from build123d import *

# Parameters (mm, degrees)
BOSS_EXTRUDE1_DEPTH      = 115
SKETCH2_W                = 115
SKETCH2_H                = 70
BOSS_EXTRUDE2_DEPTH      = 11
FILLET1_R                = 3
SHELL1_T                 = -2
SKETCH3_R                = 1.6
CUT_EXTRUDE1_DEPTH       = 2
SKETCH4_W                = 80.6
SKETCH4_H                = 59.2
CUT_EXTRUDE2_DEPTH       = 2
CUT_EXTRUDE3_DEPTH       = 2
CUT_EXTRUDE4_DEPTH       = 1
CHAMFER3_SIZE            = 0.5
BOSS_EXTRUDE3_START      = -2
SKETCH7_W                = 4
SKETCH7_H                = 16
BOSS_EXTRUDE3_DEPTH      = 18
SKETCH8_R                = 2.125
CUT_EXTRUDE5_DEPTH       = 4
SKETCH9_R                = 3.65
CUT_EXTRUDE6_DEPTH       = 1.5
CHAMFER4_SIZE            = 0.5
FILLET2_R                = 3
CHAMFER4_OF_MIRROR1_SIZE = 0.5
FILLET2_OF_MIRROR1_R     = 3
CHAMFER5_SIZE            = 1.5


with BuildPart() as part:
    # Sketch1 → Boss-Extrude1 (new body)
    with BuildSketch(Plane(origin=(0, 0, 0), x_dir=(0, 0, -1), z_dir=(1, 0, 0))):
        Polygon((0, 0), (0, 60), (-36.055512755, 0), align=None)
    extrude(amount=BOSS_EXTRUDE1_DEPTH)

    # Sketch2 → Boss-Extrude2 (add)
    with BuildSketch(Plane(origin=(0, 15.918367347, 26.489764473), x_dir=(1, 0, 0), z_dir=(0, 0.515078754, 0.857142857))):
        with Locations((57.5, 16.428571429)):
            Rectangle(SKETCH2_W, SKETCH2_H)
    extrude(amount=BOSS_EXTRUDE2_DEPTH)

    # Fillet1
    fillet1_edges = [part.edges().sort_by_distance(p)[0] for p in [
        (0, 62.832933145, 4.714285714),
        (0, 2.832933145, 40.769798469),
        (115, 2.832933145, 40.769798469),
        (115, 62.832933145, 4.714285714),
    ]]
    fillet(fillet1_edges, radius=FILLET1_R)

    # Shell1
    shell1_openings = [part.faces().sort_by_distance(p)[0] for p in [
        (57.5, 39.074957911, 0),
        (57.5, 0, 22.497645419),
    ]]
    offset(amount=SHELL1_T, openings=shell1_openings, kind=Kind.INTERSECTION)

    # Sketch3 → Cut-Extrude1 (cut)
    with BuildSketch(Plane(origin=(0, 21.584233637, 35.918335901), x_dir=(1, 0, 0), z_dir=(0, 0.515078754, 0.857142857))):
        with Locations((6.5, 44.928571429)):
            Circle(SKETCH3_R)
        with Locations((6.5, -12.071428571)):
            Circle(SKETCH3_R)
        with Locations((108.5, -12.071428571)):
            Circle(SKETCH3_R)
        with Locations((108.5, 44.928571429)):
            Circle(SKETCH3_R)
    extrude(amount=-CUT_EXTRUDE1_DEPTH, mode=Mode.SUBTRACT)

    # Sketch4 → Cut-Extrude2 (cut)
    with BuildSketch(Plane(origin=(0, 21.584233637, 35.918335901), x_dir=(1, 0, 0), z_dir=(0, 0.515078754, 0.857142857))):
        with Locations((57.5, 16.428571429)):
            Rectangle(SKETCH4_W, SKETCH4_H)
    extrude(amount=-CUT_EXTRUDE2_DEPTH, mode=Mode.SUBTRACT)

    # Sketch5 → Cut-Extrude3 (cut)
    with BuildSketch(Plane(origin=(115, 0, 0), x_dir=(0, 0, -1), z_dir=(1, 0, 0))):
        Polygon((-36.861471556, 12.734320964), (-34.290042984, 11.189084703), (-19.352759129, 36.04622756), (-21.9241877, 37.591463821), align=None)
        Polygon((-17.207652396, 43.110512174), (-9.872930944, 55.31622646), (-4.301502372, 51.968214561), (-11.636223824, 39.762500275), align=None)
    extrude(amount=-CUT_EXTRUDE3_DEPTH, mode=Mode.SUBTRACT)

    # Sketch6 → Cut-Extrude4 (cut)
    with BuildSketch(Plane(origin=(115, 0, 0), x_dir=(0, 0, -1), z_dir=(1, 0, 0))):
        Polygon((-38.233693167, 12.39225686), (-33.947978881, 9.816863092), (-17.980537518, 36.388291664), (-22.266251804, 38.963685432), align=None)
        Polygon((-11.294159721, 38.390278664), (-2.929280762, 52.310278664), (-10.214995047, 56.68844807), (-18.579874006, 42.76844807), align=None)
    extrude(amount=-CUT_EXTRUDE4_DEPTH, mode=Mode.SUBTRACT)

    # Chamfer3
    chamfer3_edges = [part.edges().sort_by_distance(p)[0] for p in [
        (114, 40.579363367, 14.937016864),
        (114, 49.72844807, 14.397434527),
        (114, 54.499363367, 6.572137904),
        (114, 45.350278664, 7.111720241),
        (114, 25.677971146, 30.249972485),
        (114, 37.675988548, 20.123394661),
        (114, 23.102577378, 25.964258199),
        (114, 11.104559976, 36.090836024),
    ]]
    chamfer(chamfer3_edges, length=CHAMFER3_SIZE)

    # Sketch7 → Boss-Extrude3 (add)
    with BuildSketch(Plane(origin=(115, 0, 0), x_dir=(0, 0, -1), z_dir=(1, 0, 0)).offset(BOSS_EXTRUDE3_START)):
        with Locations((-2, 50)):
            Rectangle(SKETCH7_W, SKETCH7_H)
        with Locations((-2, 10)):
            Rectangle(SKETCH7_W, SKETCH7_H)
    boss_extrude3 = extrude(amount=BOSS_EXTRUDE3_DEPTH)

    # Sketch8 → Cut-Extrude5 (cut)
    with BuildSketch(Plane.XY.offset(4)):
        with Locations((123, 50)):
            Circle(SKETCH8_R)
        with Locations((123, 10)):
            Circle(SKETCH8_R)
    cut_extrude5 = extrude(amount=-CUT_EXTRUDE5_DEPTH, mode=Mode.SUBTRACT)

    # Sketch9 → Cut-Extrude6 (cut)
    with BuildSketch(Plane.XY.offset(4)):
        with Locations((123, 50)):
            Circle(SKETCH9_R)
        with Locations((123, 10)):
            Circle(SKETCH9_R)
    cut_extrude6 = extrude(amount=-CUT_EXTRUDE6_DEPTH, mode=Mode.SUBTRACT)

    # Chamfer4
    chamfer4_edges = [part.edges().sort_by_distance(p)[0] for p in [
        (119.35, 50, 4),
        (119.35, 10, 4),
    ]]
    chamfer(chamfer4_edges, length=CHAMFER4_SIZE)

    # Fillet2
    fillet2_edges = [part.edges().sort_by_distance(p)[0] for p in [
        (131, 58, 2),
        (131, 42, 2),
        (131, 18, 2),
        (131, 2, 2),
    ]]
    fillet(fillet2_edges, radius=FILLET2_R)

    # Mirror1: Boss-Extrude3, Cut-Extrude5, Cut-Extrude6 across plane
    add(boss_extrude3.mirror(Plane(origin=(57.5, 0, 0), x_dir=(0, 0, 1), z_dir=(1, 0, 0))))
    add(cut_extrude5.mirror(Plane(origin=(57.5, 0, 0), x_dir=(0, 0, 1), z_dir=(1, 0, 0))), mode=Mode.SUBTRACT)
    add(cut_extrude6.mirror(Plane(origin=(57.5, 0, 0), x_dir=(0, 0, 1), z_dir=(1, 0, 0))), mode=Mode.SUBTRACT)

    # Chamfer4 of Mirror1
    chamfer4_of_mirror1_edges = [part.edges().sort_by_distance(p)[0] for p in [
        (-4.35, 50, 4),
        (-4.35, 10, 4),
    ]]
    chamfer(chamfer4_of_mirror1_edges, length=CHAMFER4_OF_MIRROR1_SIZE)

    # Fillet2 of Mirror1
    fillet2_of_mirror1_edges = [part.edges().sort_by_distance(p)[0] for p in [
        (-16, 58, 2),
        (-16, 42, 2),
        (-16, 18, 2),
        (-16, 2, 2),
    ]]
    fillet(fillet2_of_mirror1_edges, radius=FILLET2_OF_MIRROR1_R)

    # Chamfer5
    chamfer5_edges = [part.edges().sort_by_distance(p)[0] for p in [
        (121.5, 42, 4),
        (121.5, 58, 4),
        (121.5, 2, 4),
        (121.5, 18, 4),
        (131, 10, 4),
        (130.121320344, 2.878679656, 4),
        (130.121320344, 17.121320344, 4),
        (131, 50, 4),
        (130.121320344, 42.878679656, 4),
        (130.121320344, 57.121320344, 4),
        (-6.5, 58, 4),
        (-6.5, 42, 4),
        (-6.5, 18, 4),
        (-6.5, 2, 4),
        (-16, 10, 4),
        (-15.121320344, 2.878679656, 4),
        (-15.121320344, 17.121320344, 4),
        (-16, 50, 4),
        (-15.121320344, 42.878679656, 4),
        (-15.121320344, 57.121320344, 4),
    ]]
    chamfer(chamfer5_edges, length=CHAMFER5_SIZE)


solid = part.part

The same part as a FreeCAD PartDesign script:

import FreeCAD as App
import Part
import Sketcher
from FreeCAD import Vector


def edges_at(feature, points):
    """Names of the edges that pass closest to the given points."""
    edges = feature.Shape.Edges
    near = lambda p: min(range(len(edges)), key=lambda i: edges[i].distToShape(Part.Vertex(*p))[0])
    return sorted({f"Edge{near(p) + 1}" for p in points})


def faces_at(feature, points):
    """Names of the faces that lie closest to the given points."""
    faces = feature.Shape.Faces
    near = lambda p: min(range(len(faces)), key=lambda i: faces[i].distToShape(Part.Vertex(*p))[0])
    return sorted({f"Face{near(p) + 1}" for p in points})


def add_polygon(sketch, points):
    """Adds a closed chain of lines whose ends are joined by coincident constraints."""
    first, n = sketch.GeometryCount, len(points)
    for a, b in zip(points, points[1:] + points[:1]):
        sketch.addGeometry(Part.LineSegment(App.Vector(*a, 0), App.Vector(*b, 0)), False)
    for i in range(n):
        sketch.addConstraint(Sketcher.Constraint("Coincident", first + i, 2, first + (i + 1) % n, 1))

doc = App.newDocument("Part")
body = doc.addObject("PartDesign::Body", "Body")

sketch1 = body.newObject("Sketcher::SketchObject", "Sketch")
sketch1.AttachmentSupport = (doc.getObject("YZ_Plane"), [""])
sketch1.MapMode = "FlatFace"
add_polygon(sketch1, [(0, 0), (60, 0), (0, 36)])
sketch1.addConstraint([
    Sketcher.Constraint("Horizontal", 0),
    Sketcher.Constraint("Vertical", 2),
    Sketcher.Constraint("Coincident", 2, 2, -1, 1),
    Sketcher.Constraint("DistanceX", 0, 1, 0, 2, 60.0),
    Sketcher.Constraint("Distance", 1, 70.0),
])
pad1 = body.newObject("PartDesign::Pad", "Pad")
pad1.Profile = sketch1
pad1.Length = 115

sketch2 = body.newObject("Sketcher::SketchObject", "Sketch001")
sketch2.Placement = App.Placement(Vector(0, 15.918367, 26.489764), App.Rotation(Vector(1, 0, 0), Vector(0, 0.857142857, -0.515078754), Vector(0, 0.515078754, 0.857142857), "ZXY"))
add_polygon(sketch2, [(0, 51), (0, -19), (115, -19), (115, 51)])
sketch2.addConstraint([
    Sketcher.Constraint("Vertical", 0),
    Sketcher.Constraint("Horizontal", 1),
    Sketcher.Constraint("Vertical", 2),
    Sketcher.Constraint("Horizontal", 3),
    Sketcher.Constraint("PointOnObject", 0, 2, -2),
    Sketcher.Constraint("DistanceX", 1, 1, 1, 2, 115.0),
    Sketcher.Constraint("DistanceY", 0, 2, 0, 1, 70.0),
    Sketcher.Constraint("DistanceY", 0, 2, -1, 1, 18.571429),
])
pad2 = body.newObject("PartDesign::Pad", "Pad001")
pad2.Profile = sketch2
pad2.Length = 11
doc.recompute()

fillet = body.newObject("PartDesign::Fillet", "Fillet")
fillet.Base = (pad2, edges_at(pad2, [
    (0, 62.833, 4.714),
    (0, 2.833, 40.77),
    (115, 2.833, 40.77),
    (115, 62.833, 4.714),
]))
fillet.Radius = 3
doc.recompute()

thickness = body.newObject("PartDesign::Thickness", "Thickness")
thickness.Base = (fillet, faces_at(fillet, [(57.5, 30, 0), (57.5, 0, 18.028)]))
thickness.Value = 2
thickness.Reversed = True
thickness.Join = "Intersection"

sketch3 = body.newObject("Sketcher::SketchObject", "Sketch002")
sketch3.Placement = App.Placement(Vector(0, 21.584234, 35.918336), App.Rotation(Vector(1, 0, 0), Vector(0, 0.857142857, -0.515078754), Vector(0, 0.515078754, 0.857142857), "ZXY"))
sketch3.addGeometry([
    Part.Circle(Vector(6.5, 44.9, 0), Vector(0, 0, 1), 1.6),
    Part.Circle(Vector(6.5, -12.1, 0), Vector(0, 0, 1), 1.6),
    Part.Circle(Vector(108.5, -12.1, 0), Vector(0, 0, 1), 1.6),
    Part.Circle(Vector(108.5, 44.9, 0), Vector(0, 0, 1), 1.6),
], False)
sketch3.addConstraint([
    Sketcher.Constraint("Equal", 0, 1),
    Sketcher.Constraint("Equal", 1, 2),
    Sketcher.Constraint("Equal", 2, 3),
    Sketcher.Constraint("Horizontal", 1, 3, 2, 3),
    Sketcher.Constraint("Horizontal", 0, 3, 3, 3),
    Sketcher.Constraint("Vertical", 0, 3, 1, 3),
    Sketcher.Constraint("Vertical", 2, 3, 3, 3),
    Sketcher.Constraint("Diameter", 0, 3.2),
    Sketcher.Constraint("DistanceY", 1, 3, 0, 3, 57.0),
    Sketcher.Constraint("DistanceX", 1, 3, 2, 3, 102.0),
    Sketcher.Constraint("DistanceX", -1, 1, 0, 3, 6.5),
    Sketcher.Constraint("DistanceY", -1, 1, 0, 3, 44.928571),
])
pocket1 = body.newObject("PartDesign::Pocket", "Pocket")
pocket1.Profile = sketch3
pocket1.Length = 2

sketch4 = body.newObject("Sketcher::SketchObject", "Sketch003")
sketch4.Placement = App.Placement(Vector(0, 21.584234, 35.918336), App.Rotation(Vector(1, 0, 0), Vector(0, 0.857142857, -0.515078754), Vector(0, 0.515078754, 0.857142857), "ZXY"))
add_polygon(sketch4, [(17, 46), (17, -13), (98, -13), (98, 46)])
sketch4.addConstraint([
    Sketcher.Constraint("Vertical", 0),
    Sketcher.Constraint("Horizontal", 1),
    Sketcher.Constraint("Vertical", 2),
    Sketcher.Constraint("Horizontal", 3),
    Sketcher.Constraint("DistanceX", 1, 1, 1, 2, 80.6),
    Sketcher.Constraint("DistanceY", 0, 2, 0, 1, 59.2),
    Sketcher.Constraint("DistanceX", -1, 1, 0, 2, 17.2),
    Sketcher.Constraint("DistanceY", 0, 2, -1, 1, 13.171429),
])
pocket2 = body.newObject("PartDesign::Pocket", "Pocket001")
pocket2.Profile = sketch4
pocket2.Length = 2

sketch5 = body.newObject("Sketcher::SketchObject", "Sketch004")
sketch5.AttachmentSupport = (doc.getObject("YZ_Plane"), [""])
sketch5.MapMode = "FlatFace"
sketch5.AttachmentOffset = App.Placement(Vector(0, 0, 115), App.Rotation())
add_polygon(sketch5, [(12.7, 36.9), (11.2, 34.3), (36, 19.4), (37.6, 21.9)])
add_polygon(sketch5, [(55.3, 9.9), (43.1, 17.2), (39.8, 11.6), (52, 4.3)])
sketch5.addConstraint([
    Sketcher.Constraint("Perpendicular", 0, 1),
    Sketcher.Constraint("Perpendicular", 1, 2),
    Sketcher.Constraint("Perpendicular", 2, 3),
    Sketcher.Constraint("Parallel", 3, 4),
    Sketcher.Constraint("Perpendicular", 4, 5),
    Sketcher.Constraint("Perpendicular", 5, 6),
    Sketcher.Constraint("Perpendicular", 6, 7),
    Sketcher.Constraint("Distance", 0, 3.0),
    Sketcher.Constraint("Distance", 1, 29.0),
    Sketcher.Constraint("Distance", 5, 6.5),
    Sketcher.Constraint("Distance", 4, 14.24),
    Sketcher.Constraint("DistanceX", 1, 2, 7, 2, 19.269999),
    Sketcher.Constraint("DistanceX", -1, 1, 5, 2, 39.7625),
    Sketcher.Constraint("DistanceY", -1, 1, 1, 2, 19.352759),
    Sketcher.Constraint("DistanceX", -1, 1, 3, 2, 12.734321),
    Sketcher.Constraint("DistanceY", -1, 1, 7, 2, 9.872931),
])
pocket3 = body.newObject("PartDesign::Pocket", "Pocket002")
pocket3.Profile = sketch5
pocket3.Length = 2

sketch6 = body.newObject("Sketcher::SketchObject", "Sketch005")
sketch6.AttachmentSupport = (doc.getObject("YZ_Plane"), [""])
sketch6.MapMode = "FlatFace"
sketch6.AttachmentOffset = App.Placement(Vector(0, 0, 115), App.Rotation())
add_polygon(sketch6, [(12, 38), (10, 34), (36, 18), (39, 22)])
add_polygon(sketch6, [(38, 11), (52, 3), (57, 10), (43, 19)])
sketch6.addConstraint([
    Sketcher.Constraint("Perpendicular", 0, 1),
    Sketcher.Constraint("Perpendicular", 1, 2),
    Sketcher.Constraint("Perpendicular", 2, 3),
    Sketcher.Constraint("Parallel", 3, 4),
    Sketcher.Constraint("Perpendicular", 4, 5),
    Sketcher.Constraint("Perpendicular", 5, 6),
    Sketcher.Constraint("Perpendicular", 6, 7),
    Sketcher.Constraint("Distance", 0, 5.0),
    Sketcher.Constraint("Distance", 1, 31.0),
    Sketcher.Constraint("Distance", 5, 8.5),
    Sketcher.Constraint("Distance", 4, 16.24),
    Sketcher.Constraint("DistanceX", 6, 2, 5, 2, 13.92),
    Sketcher.Constraint("DistanceY", 4, 2, 0, 2, 31.018698),
    Sketcher.Constraint("DistanceY", -1, 1, 0, 2, 33.947979),
    Sketcher.Constraint("DistanceX", -1, 1, 1, 2, 36.388292),
    Sketcher.Constraint("DistanceX", -1, 1, 4, 2, 52.310279),
])
pocket4 = body.newObject("PartDesign::Pocket", "Pocket003")
pocket4.Profile = sketch6
pocket4.Length = 1
doc.recompute()

chamfer = body.newObject("PartDesign::Chamfer", "Chamfer")
chamfer.Base = (pocket4, edges_at(pocket4, [
    (114, 40.579, 14.937),
    (114, 49.728, 14.397),
    (114, 54.499, 6.572),
    (114, 45.35, 7.112),
    (114, 25.678, 30.25),
    (114, 37.676, 20.123),
    (114, 23.103, 25.964),
    (114, 11.105, 36.091),
]))
chamfer.Size = 0.5

sketch7 = body.newObject("Sketcher::SketchObject", "Sketch006")
sketch7.AttachmentSupport = (doc.getObject("YZ_Plane"), [""])
sketch7.MapMode = "FlatFace"
sketch7.AttachmentOffset = App.Placement(Vector(0, 0, 113), App.Rotation())
add_polygon(sketch7, [(58, 4), (42, 4), (42, 0), (58, 0)])
add_polygon(sketch7, [(18, 4), (2, 4), (2, 0), (18, 0)])
sketch7.addConstraint([
    Sketcher.Constraint("Horizontal", 0),
    Sketcher.Constraint("Vertical", 1),
    Sketcher.Constraint("Horizontal", 2),
    Sketcher.Constraint("Vertical", 3),
    Sketcher.Constraint("Horizontal", 4),
    Sketcher.Constraint("Vertical", 5),
    Sketcher.Constraint("Horizontal", 6),
    Sketcher.Constraint("Vertical", 7),
    Sketcher.Constraint("PointOnObject", 1, 2, -1),
    Sketcher.Constraint("PointOnObject", 5, 2, -1),
    Sketcher.Constraint("Horizontal", 3, 2, 4, 2),
    Sketcher.Constraint("Equal", 2, 4),
    Sketcher.Constraint("DistanceX", 0, 2, 0, 1, 16.0),
    Sketcher.Constraint("DistanceY", 1, 2, 1, 1, 4.0),
    Sketcher.Constraint("DistanceX", -1, 1, 0, 2, 42.0),
    Sketcher.Constraint("DistanceX", -1, 1, 4, 2, 2.0),
])
pad3 = body.newObject("PartDesign::Pad", "Pad002")
pad3.Profile = sketch7
pad3.Length = 18

sketch8 = body.newObject("Sketcher::SketchObject", "Sketch007")
sketch8.AttachmentSupport = (doc.getObject("XY_Plane"), [""])
sketch8.MapMode = "FlatFace"
sketch8.AttachmentOffset = App.Placement(Vector(0, 0, 4), App.Rotation())
sketch8.addGeometry([
    Part.Circle(Vector(123, 50, 0), Vector(0, 0, 1), 2.1),
    Part.Circle(Vector(123, 10, 0), Vector(0, 0, 1), 2.1),
], False)
sketch8.addConstraint([
    Sketcher.Constraint("Equal", 0, 1),
    Sketcher.Constraint("Vertical", 0, 3, 1, 3),
    Sketcher.Constraint("Diameter", 0, 4.25),
    Sketcher.Constraint("DistanceX", -1, 1, 0, 3, 123.0),
    Sketcher.Constraint("DistanceY", -1, 1, 0, 3, 50.0),
    Sketcher.Constraint("DistanceY", -1, 1, 1, 3, 10.0),
])
pocket5 = body.newObject("PartDesign::Pocket", "Pocket004")
pocket5.Profile = sketch8
pocket5.Length = 4

sketch9 = body.newObject("Sketcher::SketchObject", "Sketch008")
sketch9.AttachmentSupport = (doc.getObject("XY_Plane"), [""])
sketch9.MapMode = "FlatFace"
sketch9.AttachmentOffset = App.Placement(Vector(0, 0, 4), App.Rotation())
sketch9.addGeometry([
    Part.Circle(Vector(123, 50, 0), Vector(0, 0, 1), 3.6),
    Part.Circle(Vector(123, 10, 0), Vector(0, 0, 1), 3.6),
], False)
sketch9.addConstraint([
    Sketcher.Constraint("Equal", 0, 1),
    Sketcher.Constraint("Vertical", 0, 3, 1, 3),
    Sketcher.Constraint("Diameter", 0, 7.3),
    Sketcher.Constraint("DistanceX", -1, 1, 0, 3, 123.0),
    Sketcher.Constraint("DistanceY", -1, 1, 0, 3, 50.0),
    Sketcher.Constraint("DistanceY", -1, 1, 1, 3, 10.0),
])
pocket6 = body.newObject("PartDesign::Pocket", "Pocket005")
pocket6.Profile = sketch9
pocket6.Length = 1.5
doc.recompute()

chamfer2 = body.newObject("PartDesign::Chamfer", "Chamfer001")
chamfer2.Base = (pocket6, edges_at(pocket6, [(119.35, 50, 4), (119.35, 10, 4)]))
chamfer2.Size = 0.5
doc.recompute()

fillet2 = body.newObject("PartDesign::Fillet", "Fillet001")
fillet2.Base = (chamfer2, edges_at(chamfer2, [
    (131, 58, 2),
    (131, 42, 2),
    (131, 18, 2),
    (131, 2, 2),
]))
fillet2.Radius = 3
doc.recompute()

datumplane = body.newObject("PartDesign::Plane", "DatumPlane")
datumplane.AttachmentSupport = (doc.getObject("YZ_Plane"), [""])
datumplane.MapMode = "FlatFace"
datumplane.AttachmentOffset = App.Placement(Vector(0, 0, 57.5), App.Rotation())
mirrored = body.newObject("PartDesign::Mirrored", "Mirrored")
mirrored.Originals = [pad3, pocket5, pocket6]
mirrored.MirrorPlane = (datumplane, [""])
body.Tip = mirrored
doc.recompute()

chamfer3 = body.newObject("PartDesign::Chamfer", "Chamfer002")
chamfer3.Base = (mirrored, edges_at(mirrored, [(-4.35, 50, 4), (-4.35, 10, 4)]))
chamfer3.Size = 0.5
doc.recompute()

fillet3 = body.newObject("PartDesign::Fillet", "Fillet002")
fillet3.Base = (chamfer3, edges_at(chamfer3, [
    (-16, 58, 2),
    (-16, 42, 2),
    (-16, 18, 2),
    (-16, 2, 2),
]))
fillet3.Radius = 3
doc.recompute()

chamfer4 = body.newObject("PartDesign::Chamfer", "Chamfer003")
chamfer4.Base = (fillet3, edges_at(fillet3, [
    (121.5, 42, 4),
    (121.5, 58, 4),
    (121.5, 2, 4),
    (121.5, 18, 4),
    (131, 10, 4),
    (130.121, 2.879, 4),
    (130.121, 17.121, 4),
    (131, 50, 4),
    (130.121, 42.879, 4),
    (130.121, 57.121, 4),
    (-6.5, 58, 4),
    (-6.5, 42, 4),
    (-6.5, 18, 4),
    (-6.5, 2, 4),
    (-16, 10, 4),
    (-15.121, 2.879, 4),
    (-15.121, 17.121, 4),
    (-16, 50, 4),
    (-15.121, 42.879, 4),
    (-15.121, 57.121, 4),
]))
chamfer4.Size = 1.5

doc.recompute()
